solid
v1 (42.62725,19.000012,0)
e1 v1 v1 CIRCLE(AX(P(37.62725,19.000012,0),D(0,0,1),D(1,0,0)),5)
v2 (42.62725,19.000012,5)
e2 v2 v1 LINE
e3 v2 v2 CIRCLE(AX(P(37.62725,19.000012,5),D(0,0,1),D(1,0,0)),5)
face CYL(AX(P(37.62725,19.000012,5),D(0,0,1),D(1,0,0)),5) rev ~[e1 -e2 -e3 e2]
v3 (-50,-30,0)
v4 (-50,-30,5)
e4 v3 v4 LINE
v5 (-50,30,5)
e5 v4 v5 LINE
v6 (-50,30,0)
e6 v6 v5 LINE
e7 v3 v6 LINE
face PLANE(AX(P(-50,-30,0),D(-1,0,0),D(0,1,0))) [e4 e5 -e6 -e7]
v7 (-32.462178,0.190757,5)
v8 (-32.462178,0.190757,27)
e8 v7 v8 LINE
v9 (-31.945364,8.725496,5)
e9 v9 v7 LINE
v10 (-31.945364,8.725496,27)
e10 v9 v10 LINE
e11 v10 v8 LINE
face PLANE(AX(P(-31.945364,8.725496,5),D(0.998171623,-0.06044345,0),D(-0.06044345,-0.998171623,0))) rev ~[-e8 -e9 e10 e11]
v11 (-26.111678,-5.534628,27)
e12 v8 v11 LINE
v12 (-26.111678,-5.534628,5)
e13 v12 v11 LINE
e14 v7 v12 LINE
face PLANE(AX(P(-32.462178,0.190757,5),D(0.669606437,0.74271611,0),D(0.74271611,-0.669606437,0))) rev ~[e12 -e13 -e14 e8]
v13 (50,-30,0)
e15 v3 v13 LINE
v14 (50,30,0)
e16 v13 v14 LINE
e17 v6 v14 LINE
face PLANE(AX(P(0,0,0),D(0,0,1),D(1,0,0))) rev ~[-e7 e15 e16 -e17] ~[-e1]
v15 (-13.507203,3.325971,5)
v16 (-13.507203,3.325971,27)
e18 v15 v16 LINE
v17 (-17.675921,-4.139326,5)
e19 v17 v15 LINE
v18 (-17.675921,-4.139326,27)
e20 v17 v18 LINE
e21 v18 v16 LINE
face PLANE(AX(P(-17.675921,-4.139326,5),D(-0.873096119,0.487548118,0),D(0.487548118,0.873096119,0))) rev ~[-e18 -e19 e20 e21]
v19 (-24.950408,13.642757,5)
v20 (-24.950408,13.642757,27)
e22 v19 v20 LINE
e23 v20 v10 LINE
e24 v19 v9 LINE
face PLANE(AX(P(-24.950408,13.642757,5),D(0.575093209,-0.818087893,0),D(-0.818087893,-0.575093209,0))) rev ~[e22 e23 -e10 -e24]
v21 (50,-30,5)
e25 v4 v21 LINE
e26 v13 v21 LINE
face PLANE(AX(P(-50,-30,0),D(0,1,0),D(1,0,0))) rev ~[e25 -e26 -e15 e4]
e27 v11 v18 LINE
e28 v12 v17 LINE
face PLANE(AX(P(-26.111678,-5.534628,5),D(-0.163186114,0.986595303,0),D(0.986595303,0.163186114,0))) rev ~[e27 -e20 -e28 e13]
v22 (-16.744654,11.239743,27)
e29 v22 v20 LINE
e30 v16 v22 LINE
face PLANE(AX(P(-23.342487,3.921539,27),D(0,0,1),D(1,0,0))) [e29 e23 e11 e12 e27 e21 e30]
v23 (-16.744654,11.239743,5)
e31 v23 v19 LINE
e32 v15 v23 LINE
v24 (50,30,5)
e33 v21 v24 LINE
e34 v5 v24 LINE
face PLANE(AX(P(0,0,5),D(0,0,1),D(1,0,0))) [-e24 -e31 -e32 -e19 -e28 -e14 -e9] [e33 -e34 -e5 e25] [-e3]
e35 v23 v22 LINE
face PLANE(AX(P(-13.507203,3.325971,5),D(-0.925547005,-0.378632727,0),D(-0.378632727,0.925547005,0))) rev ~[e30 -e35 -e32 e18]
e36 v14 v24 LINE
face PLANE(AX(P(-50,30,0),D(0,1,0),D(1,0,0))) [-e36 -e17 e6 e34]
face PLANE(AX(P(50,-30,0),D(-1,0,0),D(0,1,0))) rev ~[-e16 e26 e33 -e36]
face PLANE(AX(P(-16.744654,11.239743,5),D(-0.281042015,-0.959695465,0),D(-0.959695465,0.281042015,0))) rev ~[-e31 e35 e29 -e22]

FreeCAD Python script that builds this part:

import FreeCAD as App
import Part
import Sketcher

V = App.Vector

doc = App.newDocument("Part")
body = doc.addObject("PartDesign::Body", "Body")

sketch1 = body.newObject("Sketcher::SketchObject", "Sketch")
sketch1.AttachmentSupport = (doc.getObject("XY_Plane"), [""])
sketch1.MapMode = "FlatFace"
sketch1.addGeometry([
    Part.LineSegment(V(-50, 30, 0), V(-50, -30, 0)),
    Part.LineSegment(V(-50, -30, 0), V(50, -30, 0)),
    Part.LineSegment(V(50, -30, 0), V(50, 30, 0)),
    Part.LineSegment(V(50, 30, 0), V(-50, 30, 0)),
], False)
sketch1.addConstraint([
    Sketcher.Constraint("Coincident", 0, 2, 1, 1),
    Sketcher.Constraint("Coincident", 1, 2, 2, 1),
    Sketcher.Constraint("Coincident", 2, 2, 3, 1),
    Sketcher.Constraint("Coincident", 3, 2, 0, 1),
    Sketcher.Constraint("Vertical", 0),
    Sketcher.Constraint("Horizontal", 1),
    Sketcher.Constraint("Vertical", 2),
    Sketcher.Constraint("Horizontal", 3),
    Sketcher.Constraint("Symmetric", 0, 2, 2, 2, -1, 1),
    Sketcher.Constraint("DistanceX", 1, 1, 1, 2, 100.0),
    Sketcher.Constraint("DistanceY", 0, 2, 0, 1, 60.0),
])
pad1 = body.newObject("PartDesign::Pad", "Pad")
pad1.Profile = sketch1
pad1.Length = 5

sketch2 = body.newObject("Sketcher::SketchObject", "Sketch001")
sketch2.AttachmentSupport = (doc.getObject("XY_Plane"), [""])
sketch2.MapMode = "FlatFace"
sketch2.AttachmentOffset = App.Placement(V(0, 0, 5), App.Rotation())
sketch2.addGeometry(Part.Circle(V(37.62725, 19.000012, 0), V(0, 0, 1), 5), False)
sketch2.addConstraint([
    Sketcher.Constraint("Diameter", 0, 10.0),
    Sketcher.Constraint("DistanceX", -1, 1, 0, 3, 37.62725),
    Sketcher.Constraint("DistanceY", -1, 1, 0, 3, 19.000012),
])
pocket1 = body.newObject("PartDesign::Pocket", "Pocket")
pocket1.Profile = sketch2
pocket1.Length = 25

sketch3 = body.newObject("Sketcher::SketchObject", "Sketch002")
sketch3.AttachmentSupport = (doc.getObject("XY_Plane"), [""])
sketch3.MapMode = "FlatFace"
sketch3.AttachmentOffset = App.Placement(V(0, 0, 5), App.Rotation())
sketch3.addGeometry([
    Part.LineSegment(V(-13.507203, 3.325971, 0), V(-16.744654, 11.239743, 0)),
    Part.LineSegment(V(-16.744654, 11.239743, 0), V(-24.950408, 13.642757, 0)),
    Part.LineSegment(V(-24.950408, 13.642757, 0), V(-31.945364, 8.725496, 0)),
    Part.LineSegment(V(-31.945364, 8.725496, 0), V(-32.462178, 0.190757, 0)),
    Part.LineSegment(V(-32.462178, 0.190757, 0), V(-26.111678, -5.534628, 0)),
    Part.LineSegment(V(-26.111678, -5.534628, 0), V(-17.675921, -4.139326, 0)),
    Part.LineSegment(V(-17.675921, -4.139326, 0), V(-13.507203, 3.325971, 0)),
], False)
sketch3.addConstraint([
    Sketcher.Constraint("Coincident", 0, 2, 1, 1),
    Sketcher.Constraint("Coincident", 1, 2, 2, 1),
    Sketcher.Constraint("Coincident", 2, 2, 3, 1),
    Sketcher.Constraint("Coincident", 3, 2, 4, 1),
    Sketcher.Constraint("Coincident", 4, 2, 5, 1),
    Sketcher.Constraint("Coincident", 5, 2, 6, 1),
    Sketcher.Constraint("Coincident", 6, 2, 0, 1),
    Sketcher.Constraint("Equal", 0, 1),
    Sketcher.Constraint("Equal", 1, 2),
    Sketcher.Constraint("Equal", 2, 3),
    Sketcher.Constraint("Equal", 3, 4),
    Sketcher.Constraint("Equal", 4, 5),
    Sketcher.Constraint("Equal", 5, 6),
    Sketcher.Constraint("DistanceY", 3, 2, 1, 2, 13.452),
    Sketcher.Constraint("DistanceX", 3, 2, 4, 2, 6.3505),
    Sketcher.Constraint("DistanceY", 4, 2, 6, 2, 8.860599),
    Sketcher.Constraint("DistanceX", 3, 2, -1, 1, 32.462178),
    Sketcher.Constraint("DistanceX", 5, 2, -1, 1, 17.675921),
    Sketcher.Constraint("DistanceY", -1, 1, 6, 2, 3.325971),
    Sketcher.Constraint("DistanceY", 2, 2, 1, 2, 4.917261),
    Sketcher.Constraint("DistanceX", 2, 2, 0, 2, 15.20071),
])
pad2 = body.newObject("PartDesign::Pad", "Pad001")
pad2.Profile = sketch3
pad2.Length = 22

doc.recompute()
